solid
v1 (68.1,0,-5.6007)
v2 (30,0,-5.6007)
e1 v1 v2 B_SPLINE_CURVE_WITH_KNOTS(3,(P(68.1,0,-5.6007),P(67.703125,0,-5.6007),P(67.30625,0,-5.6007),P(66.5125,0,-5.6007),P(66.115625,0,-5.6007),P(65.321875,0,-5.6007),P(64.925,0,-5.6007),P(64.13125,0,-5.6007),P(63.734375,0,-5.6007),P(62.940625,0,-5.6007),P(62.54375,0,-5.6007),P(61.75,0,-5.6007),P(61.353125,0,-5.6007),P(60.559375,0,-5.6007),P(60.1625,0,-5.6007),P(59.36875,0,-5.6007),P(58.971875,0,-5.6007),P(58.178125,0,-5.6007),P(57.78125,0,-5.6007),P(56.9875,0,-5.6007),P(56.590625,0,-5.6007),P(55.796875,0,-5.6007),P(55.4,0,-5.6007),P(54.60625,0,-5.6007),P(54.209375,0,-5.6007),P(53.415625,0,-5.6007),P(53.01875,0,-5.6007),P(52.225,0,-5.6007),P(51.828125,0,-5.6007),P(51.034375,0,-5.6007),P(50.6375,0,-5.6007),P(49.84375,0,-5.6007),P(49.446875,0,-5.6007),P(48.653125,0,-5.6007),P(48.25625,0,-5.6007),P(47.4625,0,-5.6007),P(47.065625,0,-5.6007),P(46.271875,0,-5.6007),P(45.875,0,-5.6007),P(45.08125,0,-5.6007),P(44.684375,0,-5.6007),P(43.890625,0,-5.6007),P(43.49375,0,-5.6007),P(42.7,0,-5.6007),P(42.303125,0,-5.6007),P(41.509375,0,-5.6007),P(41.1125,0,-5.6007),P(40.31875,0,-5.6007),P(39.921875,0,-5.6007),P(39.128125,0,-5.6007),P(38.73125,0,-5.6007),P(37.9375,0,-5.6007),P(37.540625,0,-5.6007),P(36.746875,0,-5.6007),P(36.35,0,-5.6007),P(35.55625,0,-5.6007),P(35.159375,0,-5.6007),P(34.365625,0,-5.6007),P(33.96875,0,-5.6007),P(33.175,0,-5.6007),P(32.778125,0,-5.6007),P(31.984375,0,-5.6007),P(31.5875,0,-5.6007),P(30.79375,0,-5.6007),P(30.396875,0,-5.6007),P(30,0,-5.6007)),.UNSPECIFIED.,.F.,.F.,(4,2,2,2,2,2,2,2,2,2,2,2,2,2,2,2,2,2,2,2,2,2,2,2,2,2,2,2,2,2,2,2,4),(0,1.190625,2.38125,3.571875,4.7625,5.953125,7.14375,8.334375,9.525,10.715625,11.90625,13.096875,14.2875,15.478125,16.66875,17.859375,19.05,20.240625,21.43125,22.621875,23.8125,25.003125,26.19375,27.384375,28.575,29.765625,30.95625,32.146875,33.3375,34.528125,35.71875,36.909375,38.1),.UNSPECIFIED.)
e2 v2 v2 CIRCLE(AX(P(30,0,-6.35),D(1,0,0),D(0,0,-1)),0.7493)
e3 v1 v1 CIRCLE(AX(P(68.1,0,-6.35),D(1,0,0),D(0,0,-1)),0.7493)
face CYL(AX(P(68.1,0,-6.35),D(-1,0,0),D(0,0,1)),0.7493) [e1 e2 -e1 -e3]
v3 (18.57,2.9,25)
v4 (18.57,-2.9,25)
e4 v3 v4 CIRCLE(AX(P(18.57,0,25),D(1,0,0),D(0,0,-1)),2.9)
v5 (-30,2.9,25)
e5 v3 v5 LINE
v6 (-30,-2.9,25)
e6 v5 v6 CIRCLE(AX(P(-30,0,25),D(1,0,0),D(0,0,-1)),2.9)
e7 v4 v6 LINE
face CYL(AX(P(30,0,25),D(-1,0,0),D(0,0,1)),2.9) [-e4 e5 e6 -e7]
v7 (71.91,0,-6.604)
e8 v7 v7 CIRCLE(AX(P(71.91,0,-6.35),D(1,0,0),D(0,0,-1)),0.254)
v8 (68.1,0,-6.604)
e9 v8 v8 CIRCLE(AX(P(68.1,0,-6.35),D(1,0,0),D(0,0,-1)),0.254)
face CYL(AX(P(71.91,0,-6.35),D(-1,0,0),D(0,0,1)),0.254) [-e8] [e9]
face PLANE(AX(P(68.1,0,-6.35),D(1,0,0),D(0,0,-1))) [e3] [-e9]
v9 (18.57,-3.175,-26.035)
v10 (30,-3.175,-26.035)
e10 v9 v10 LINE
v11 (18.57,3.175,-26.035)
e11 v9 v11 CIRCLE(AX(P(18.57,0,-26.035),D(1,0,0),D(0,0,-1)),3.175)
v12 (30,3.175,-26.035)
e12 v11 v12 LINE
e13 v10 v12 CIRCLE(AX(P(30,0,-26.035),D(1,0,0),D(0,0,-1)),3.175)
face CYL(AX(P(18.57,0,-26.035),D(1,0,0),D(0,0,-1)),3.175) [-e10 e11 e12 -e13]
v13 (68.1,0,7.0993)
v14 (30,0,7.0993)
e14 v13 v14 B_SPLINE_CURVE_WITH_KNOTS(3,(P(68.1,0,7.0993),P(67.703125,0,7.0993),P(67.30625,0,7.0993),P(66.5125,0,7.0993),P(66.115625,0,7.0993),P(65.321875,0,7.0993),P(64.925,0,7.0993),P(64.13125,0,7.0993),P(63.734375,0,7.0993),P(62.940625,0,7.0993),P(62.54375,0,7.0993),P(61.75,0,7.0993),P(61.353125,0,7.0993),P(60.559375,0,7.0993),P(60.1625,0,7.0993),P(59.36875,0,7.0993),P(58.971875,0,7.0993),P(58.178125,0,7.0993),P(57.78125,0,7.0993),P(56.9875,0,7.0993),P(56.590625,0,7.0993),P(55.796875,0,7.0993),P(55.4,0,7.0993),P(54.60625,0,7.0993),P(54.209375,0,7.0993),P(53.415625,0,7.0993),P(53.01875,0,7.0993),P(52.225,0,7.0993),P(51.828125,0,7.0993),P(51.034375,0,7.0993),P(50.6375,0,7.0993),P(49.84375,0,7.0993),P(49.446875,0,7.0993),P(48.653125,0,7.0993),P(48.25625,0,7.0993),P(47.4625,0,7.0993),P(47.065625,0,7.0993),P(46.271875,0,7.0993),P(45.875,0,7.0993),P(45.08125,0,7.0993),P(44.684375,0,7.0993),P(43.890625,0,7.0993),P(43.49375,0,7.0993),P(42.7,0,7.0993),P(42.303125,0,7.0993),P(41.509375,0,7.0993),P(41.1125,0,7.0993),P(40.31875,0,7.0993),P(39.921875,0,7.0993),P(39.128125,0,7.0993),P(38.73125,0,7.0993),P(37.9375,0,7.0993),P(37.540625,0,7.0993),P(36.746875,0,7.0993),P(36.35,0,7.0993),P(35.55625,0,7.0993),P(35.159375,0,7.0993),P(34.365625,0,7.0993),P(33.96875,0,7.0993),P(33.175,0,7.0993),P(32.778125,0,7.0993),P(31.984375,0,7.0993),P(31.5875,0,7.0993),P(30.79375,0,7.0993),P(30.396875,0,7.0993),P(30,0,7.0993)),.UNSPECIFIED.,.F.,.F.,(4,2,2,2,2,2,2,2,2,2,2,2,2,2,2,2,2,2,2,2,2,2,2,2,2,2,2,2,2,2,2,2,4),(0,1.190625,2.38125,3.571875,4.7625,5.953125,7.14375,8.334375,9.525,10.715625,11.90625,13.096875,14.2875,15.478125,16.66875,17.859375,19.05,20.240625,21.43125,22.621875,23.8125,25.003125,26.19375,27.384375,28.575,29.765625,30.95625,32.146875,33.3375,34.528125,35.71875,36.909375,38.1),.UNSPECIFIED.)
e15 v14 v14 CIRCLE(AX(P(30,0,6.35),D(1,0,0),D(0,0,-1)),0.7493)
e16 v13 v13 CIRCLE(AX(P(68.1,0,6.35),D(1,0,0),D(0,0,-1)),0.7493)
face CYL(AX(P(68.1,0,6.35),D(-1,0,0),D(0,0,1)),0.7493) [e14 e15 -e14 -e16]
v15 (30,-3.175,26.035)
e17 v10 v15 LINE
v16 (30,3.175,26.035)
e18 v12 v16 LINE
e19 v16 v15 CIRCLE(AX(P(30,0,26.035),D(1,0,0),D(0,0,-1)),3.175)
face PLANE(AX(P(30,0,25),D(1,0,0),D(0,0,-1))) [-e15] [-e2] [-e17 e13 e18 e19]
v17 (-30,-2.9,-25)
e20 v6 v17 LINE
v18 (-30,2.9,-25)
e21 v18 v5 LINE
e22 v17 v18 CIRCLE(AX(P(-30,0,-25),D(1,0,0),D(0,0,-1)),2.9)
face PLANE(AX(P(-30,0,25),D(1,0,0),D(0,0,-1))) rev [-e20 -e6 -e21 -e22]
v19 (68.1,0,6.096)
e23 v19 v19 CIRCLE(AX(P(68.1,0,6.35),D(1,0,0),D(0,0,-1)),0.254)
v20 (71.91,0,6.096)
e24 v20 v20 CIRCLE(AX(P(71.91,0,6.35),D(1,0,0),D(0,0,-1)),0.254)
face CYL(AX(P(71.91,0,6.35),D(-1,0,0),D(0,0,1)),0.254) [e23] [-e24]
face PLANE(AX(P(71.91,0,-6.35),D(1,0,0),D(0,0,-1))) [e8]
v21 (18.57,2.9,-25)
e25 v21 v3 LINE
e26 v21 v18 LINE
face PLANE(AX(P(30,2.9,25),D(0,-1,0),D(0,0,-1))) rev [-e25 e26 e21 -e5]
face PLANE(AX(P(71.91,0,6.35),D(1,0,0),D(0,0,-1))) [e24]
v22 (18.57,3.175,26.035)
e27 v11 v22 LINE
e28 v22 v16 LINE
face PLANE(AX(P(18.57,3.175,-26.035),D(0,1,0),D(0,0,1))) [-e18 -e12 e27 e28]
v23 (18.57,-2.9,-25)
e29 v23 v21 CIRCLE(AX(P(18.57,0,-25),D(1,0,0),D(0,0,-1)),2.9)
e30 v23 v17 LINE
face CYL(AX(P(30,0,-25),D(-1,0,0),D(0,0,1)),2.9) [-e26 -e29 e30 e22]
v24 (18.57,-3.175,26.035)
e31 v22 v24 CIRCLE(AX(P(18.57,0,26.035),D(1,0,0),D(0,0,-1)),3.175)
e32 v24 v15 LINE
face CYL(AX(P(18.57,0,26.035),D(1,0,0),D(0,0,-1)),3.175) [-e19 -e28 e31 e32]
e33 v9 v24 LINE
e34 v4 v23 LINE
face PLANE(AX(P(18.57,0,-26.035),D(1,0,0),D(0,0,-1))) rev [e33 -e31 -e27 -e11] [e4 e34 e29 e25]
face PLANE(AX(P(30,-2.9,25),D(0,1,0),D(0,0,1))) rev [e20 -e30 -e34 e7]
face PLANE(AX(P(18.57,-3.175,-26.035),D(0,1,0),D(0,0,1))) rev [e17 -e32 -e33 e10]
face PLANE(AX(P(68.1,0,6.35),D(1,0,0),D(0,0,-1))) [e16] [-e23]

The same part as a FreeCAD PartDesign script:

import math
import FreeCAD as App
import Part
import Sketcher
Q = App.Units.Quantity

doc = App.newDocument("Part")
body = doc.addObject("PartDesign::Body", "Body")

sketch1 = body.newObject("Sketcher::SketchObject", "Sketch")
sketch1.AttachmentSupport = (doc.getObject("YZ_Plane"), [""])
sketch1.MapMode = "FlatFace"
sketch1.addGeometry(Part.LineSegment(App.Vector(2.9, -25, 0), App.Vector(2.9, 25, 0)), False)
sketch1.addGeometry(Part.ArcOfCircle(Part.Circle(App.Vector(0, 25, 0), App.Vector(0, 0, 1), 2.9), math.radians(0), math.radians(180)), False)
sketch1.addGeometry(Part.LineSegment(App.Vector(-2.9, 25, 0), App.Vector(-2.9, -25, 0)), False)
sketch1.addGeometry(Part.ArcOfCircle(Part.Circle(App.Vector(0, -25, 0), App.Vector(0, 0, 1), 2.9), math.radians(180), math.radians(360)), False)
sketch1.addConstraint(Sketcher.Constraint("Tangent", 0, 2, 1, 1))
sketch1.addConstraint(Sketcher.Constraint("Tangent", 1, 2, 2, 1))
sketch1.addConstraint(Sketcher.Constraint("Tangent", 2, 2, 3, 1))
sketch1.addConstraint(Sketcher.Constraint("Tangent", 3, 2, 0, 1))
sketch1.addConstraint(Sketcher.Constraint("Vertical", 0))
sketch1.addConstraint(Sketcher.Constraint("Vertical", 2))
sketch1.addConstraint(Sketcher.Constraint("Symmetric", 1, 3, 3, 3, -1, 1))
sketch1.addConstraint(Sketcher.Constraint("Radius", 1, Q("2.9 mm")))
sketch1.addConstraint(Sketcher.Constraint("DistanceY", 0, 1, 0, 2, Q("50 mm")))
pad1 = body.newObject("PartDesign::Pad", "Pad")
pad1.Profile = sketch1
pad1.Length = 60
pad1.Midplane = True

sketch2 = body.newObject("Sketcher::SketchObject", "Sketch001")
sketch2.AttachmentSupport = (doc.getObject("YZ_Plane"), [""])
sketch2.MapMode = "FlatFace"
sketch2.AttachmentOffset = App.Placement(App.Vector(0, 0, 30), App.Rotation())
sketch2.addGeometry(Part.Circle(App.Vector(0, 6.35, 0), App.Vector(0, 0, 1), 0.7493), False)
sketch2.addGeometry(Part.Circle(App.Vector(0, -6.35, 0), App.Vector(0, 0, 1), 0.7493), False)
sketch2.addConstraint(Sketcher.Constraint("Equal", 0, 1))
sketch2.addConstraint(Sketcher.Constraint("Symmetric", 0, 3, 1, 3, -1, 1))
sketch2.addConstraint(Sketcher.Constraint("PointOnObject", 0, 3, -2))
sketch2.addConstraint(Sketcher.Constraint("Diameter", 0, Q("0.059 in")))
sketch2.addConstraint(Sketcher.Constraint("DistanceY", 1, 3, 0, 3, Q("0.5 in")))
pad2 = body.newObject("PartDesign::Pad", "Pad001")
pad2.Profile = sketch2
pad2.Length = Q("1.5 in")

sketch3 = body.newObject("Sketcher::SketchObject", "Sketch002")
sketch3.AttachmentSupport = (doc.getObject("YZ_Plane"), [""])
sketch3.MapMode = "FlatFace"
sketch3.AttachmentOffset = App.Placement(App.Vector(0, 0, 68.1), App.Rotation())
sketch3.addGeometry(Part.Circle(App.Vector(0, 6.35, 0), App.Vector(0, 0, 1), 0.254), False)
sketch3.addConstraint(Sketcher.Constraint("PointOnObject", 0, 3, -2))
sketch3.addConstraint(Sketcher.Constraint("Diameter", 0, Q("0.02 in")))
sketch3.addConstraint(Sketcher.Constraint("DistanceY", -1, 1, 0, 3, Q("0.25 in")))
pad3 = body.newObject("PartDesign::Pad", "Pad002")
pad3.Profile = sketch3
pad3.Length = Q("0.15 in")

sketch4 = body.newObject("Sketcher::SketchObject", "Sketch003")
sketch4.AttachmentSupport = (doc.getObject("YZ_Plane"), [""])
sketch4.MapMode = "FlatFace"
sketch4.AttachmentOffset = App.Placement(App.Vector(0, 0, 68.1), App.Rotation())
sketch4.addGeometry(Part.Circle(App.Vector(0, -6.35, 0), App.Vector(0, 0, 1), 0.254), False)
sketch4.addConstraint(Sketcher.Constraint("PointOnObject", 0, 3, -2))
sketch4.addConstraint(Sketcher.Constraint("Diameter", 0, Q("0.02 in")))
sketch4.addConstraint(Sketcher.Constraint("DistanceY", 0, 3, -1, 1, Q("0.25 in")))
pad4 = body.newObject("PartDesign::Pad", "Pad003")
pad4.Profile = sketch4
pad4.Length = Q("0.15 in")

sketch5 = body.newObject("Sketcher::SketchObject", "Sketch004")
sketch5.AttachmentSupport = (doc.getObject("YZ_Plane"), [""])
sketch5.MapMode = "FlatFace"
sketch5.AttachmentOffset = App.Placement(App.Vector(0, 0, 30), App.Rotation())
sketch5.addGeometry(Part.LineSegment(App.Vector(-3.175, 26.035, 0), App.Vector(-3.175, -26.035, 0)), False)
sketch5.addGeometry(Part.ArcOfCircle(Part.Circle(App.Vector(0, -26.035, 0), App.Vector(0, 0, 1), 3.175), math.radians(180), math.radians(360)), False)
sketch5.addGeometry(Part.LineSegment(App.Vector(3.175, -26.035, 0), App.Vector(3.175, 26.035, 0)), False)
sketch5.addGeometry(Part.ArcOfCircle(Part.Circle(App.Vector(0, 26.035, 0), App.Vector(0, 0, 1), 3.175), math.radians(0), math.radians(180)), False)
sketch5.addConstraint(Sketcher.Constraint("Tangent", 0, 2, 1, 1))
sketch5.addConstraint(Sketcher.Constraint("Tangent", 1, 2, 2, 1))
sketch5.addConstraint(Sketcher.Constraint("Tangent", 2, 2, 3, 1))
sketch5.addConstraint(Sketcher.Constraint("Tangent", 3, 2, 0, 1))
sketch5.addConstraint(Sketcher.Constraint("Vertical", 0))
sketch5.addConstraint(Sketcher.Constraint("Vertical", 2))
sketch5.addConstraint(Sketcher.Constraint("Symmetric", 1, 3, 3, 3, -1, 1))
sketch5.addConstraint(Sketcher.Constraint("Radius", 1, Q("0.125 in")))
sketch5.addConstraint(Sketcher.Constraint("DistanceY", 0, 2, 0, 1, Q("2.05 in")))
pad5 = body.newObject("PartDesign::Pad", "Pad004")
pad5.Profile = sketch5
pad5.Length = Q("0.45 in")
pad5.Reversed = True

doc.recompute()
